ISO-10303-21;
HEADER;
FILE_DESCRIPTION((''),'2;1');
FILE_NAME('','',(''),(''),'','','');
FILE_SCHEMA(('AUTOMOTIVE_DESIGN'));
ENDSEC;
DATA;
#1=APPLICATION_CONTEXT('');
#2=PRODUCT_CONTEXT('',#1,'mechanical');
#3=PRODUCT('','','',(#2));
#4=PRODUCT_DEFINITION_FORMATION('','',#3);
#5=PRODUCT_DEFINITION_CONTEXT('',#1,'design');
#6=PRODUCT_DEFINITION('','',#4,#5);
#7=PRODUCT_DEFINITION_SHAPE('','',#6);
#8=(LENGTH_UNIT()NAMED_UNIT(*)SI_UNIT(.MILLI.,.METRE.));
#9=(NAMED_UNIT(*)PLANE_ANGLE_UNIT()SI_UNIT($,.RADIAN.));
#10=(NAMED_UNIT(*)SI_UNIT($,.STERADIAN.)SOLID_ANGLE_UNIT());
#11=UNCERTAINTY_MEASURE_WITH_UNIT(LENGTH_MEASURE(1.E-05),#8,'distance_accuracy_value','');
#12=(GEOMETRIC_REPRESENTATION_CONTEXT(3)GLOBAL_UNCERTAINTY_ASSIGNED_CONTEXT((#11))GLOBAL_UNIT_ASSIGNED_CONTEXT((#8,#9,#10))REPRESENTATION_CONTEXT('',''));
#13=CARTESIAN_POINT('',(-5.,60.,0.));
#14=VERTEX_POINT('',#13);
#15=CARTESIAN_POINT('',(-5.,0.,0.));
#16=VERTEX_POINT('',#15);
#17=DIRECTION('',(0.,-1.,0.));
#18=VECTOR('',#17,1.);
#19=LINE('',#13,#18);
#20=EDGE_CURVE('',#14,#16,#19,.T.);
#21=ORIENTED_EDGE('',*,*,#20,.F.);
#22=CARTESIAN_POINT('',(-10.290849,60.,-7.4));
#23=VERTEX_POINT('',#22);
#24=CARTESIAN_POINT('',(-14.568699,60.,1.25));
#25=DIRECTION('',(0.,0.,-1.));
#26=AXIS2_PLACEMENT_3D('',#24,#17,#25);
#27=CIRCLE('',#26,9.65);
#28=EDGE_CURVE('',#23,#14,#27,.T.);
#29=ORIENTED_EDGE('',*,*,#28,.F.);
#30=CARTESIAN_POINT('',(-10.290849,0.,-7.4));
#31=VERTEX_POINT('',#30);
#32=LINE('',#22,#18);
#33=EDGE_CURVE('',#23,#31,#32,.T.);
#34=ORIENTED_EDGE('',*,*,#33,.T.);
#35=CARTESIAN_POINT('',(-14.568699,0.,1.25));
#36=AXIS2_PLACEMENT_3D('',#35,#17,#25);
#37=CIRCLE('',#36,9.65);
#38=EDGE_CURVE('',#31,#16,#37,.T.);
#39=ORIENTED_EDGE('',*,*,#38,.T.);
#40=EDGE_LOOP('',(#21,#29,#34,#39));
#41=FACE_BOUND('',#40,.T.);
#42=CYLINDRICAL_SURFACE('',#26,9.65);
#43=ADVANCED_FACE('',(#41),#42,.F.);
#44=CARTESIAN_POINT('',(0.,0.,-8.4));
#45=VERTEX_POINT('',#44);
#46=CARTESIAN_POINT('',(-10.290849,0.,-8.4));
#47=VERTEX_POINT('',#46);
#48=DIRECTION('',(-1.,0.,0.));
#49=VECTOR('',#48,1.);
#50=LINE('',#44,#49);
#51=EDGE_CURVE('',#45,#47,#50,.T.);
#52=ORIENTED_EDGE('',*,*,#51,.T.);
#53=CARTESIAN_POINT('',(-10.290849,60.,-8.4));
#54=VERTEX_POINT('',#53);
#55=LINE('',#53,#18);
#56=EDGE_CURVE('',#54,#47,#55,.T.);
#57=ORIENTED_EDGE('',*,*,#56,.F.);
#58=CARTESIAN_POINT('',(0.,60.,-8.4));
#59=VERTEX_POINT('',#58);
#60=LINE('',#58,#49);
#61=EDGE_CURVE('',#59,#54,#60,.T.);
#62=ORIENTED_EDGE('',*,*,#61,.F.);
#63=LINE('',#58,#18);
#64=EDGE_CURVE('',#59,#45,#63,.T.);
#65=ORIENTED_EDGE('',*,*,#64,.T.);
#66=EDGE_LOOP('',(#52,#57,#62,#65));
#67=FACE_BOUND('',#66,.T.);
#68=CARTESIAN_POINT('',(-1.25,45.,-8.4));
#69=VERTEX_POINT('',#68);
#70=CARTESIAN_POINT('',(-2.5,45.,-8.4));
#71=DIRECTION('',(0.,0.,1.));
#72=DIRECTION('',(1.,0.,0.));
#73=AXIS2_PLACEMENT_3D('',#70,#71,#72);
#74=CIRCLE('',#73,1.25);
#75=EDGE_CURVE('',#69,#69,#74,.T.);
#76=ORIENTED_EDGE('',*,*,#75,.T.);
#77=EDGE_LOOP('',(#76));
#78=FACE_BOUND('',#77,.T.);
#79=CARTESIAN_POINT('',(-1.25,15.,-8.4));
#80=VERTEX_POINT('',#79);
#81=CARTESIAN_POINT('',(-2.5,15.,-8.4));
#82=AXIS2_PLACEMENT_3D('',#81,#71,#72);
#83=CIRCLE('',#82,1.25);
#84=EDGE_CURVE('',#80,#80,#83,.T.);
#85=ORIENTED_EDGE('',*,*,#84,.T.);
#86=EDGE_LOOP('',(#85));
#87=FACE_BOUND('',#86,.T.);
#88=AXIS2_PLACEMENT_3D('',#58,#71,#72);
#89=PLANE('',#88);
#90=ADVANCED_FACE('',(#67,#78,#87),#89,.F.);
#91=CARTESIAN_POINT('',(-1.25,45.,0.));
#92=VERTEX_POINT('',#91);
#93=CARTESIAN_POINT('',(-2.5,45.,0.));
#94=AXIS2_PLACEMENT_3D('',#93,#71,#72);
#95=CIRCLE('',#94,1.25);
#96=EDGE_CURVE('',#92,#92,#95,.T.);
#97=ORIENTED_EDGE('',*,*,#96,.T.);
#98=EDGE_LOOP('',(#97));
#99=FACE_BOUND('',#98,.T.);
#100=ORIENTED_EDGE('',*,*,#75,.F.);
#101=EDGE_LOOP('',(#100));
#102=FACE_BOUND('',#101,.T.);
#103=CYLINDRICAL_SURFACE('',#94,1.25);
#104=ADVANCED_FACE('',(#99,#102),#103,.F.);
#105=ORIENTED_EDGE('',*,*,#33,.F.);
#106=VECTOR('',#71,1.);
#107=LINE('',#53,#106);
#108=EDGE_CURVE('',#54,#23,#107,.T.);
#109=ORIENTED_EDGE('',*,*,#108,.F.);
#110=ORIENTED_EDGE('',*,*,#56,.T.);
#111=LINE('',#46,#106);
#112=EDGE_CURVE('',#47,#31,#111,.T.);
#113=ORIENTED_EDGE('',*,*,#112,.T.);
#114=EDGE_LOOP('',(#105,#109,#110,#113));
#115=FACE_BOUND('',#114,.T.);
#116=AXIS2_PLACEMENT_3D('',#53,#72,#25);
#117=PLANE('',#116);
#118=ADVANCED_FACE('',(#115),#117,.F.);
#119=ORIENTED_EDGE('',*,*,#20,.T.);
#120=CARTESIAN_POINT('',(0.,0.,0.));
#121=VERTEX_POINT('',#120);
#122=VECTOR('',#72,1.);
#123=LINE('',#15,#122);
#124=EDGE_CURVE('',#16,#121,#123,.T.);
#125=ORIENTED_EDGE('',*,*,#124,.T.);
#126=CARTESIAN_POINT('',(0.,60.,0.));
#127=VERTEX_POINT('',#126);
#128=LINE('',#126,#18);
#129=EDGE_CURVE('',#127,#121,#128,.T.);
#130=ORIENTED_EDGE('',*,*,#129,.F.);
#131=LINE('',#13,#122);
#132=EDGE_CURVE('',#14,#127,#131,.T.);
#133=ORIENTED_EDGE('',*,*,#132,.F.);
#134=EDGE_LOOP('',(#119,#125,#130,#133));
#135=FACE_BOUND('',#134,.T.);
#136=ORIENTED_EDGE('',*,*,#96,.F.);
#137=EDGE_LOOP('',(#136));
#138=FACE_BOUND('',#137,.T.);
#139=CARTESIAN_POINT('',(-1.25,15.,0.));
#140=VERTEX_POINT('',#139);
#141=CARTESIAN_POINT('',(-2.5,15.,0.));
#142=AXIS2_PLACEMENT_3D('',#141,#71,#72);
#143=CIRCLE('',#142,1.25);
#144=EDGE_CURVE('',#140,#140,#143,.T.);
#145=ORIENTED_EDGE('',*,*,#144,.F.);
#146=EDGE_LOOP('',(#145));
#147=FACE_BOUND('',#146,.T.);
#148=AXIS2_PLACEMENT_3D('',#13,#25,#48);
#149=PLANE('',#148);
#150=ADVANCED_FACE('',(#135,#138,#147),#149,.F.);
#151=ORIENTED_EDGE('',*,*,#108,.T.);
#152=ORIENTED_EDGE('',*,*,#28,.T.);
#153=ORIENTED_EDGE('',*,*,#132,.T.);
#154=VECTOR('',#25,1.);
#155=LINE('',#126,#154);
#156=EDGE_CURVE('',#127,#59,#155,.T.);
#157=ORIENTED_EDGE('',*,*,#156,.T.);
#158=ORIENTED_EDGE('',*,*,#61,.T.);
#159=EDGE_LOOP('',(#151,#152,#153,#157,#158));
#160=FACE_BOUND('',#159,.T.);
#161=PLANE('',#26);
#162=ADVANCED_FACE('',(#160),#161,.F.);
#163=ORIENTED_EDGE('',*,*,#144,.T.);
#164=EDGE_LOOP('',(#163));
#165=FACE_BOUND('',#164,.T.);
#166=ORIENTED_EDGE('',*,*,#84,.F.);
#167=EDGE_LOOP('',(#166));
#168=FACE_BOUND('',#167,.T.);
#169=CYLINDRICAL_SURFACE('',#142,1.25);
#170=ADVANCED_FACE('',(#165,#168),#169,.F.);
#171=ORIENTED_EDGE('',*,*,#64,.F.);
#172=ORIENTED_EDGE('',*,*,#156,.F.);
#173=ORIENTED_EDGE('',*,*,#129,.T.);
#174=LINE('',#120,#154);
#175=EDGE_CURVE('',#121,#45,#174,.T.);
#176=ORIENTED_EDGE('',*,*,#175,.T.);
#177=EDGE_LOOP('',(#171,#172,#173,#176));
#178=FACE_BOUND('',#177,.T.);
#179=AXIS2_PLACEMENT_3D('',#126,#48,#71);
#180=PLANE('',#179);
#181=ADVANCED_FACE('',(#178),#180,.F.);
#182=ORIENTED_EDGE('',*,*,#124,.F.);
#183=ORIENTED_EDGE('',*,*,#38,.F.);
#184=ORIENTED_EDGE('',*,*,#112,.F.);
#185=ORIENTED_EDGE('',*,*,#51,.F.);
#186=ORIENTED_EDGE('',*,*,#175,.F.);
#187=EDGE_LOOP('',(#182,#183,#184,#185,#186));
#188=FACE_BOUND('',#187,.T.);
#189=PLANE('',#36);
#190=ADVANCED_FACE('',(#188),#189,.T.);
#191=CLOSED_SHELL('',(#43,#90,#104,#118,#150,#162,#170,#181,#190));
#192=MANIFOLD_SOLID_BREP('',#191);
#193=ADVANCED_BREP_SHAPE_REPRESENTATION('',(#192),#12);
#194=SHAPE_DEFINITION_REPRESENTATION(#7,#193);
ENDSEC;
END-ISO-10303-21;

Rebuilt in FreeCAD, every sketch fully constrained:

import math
import FreeCAD as App
import Part
import Sketcher
from FreeCAD import Vector
Q = App.Units.Quantity

doc = App.newDocument("Part")
body = doc.addObject("PartDesign::Body", "Body")

# Sketch on XZ plane
sketch1 = body.newObject("Sketcher::SketchObject", "Sketch")
sketch1.AttachmentSupport = (doc.getObject("XZ_Plane"), [""])
sketch1.MapMode = "FlatFace"
sketch1.addGeometry([
    Part.LineSegment(Vector(0, 0, 0), Vector(0, -8.4, 0)),  # 0
    Part.LineSegment(Vector(0, -8.4, 0), Vector(-10.3, -8.4, 0)),  # 1
    Part.LineSegment(Vector(-10.3, -8.4, 0), Vector(-10.3, -7.4, 0)),  # 2
    Part.ArcOfCircle(Part.Circle(Vector(-14.6, 1.2, 0), Vector(0, 0, 1), 9.6), math.radians(-64), math.radians(-7)),  # 3
    Part.LineSegment(Vector(-5, 0, 0), Vector(0, 0, 0)),  # 4
], False)
sketch1.addConstraint([
    Sketcher.Constraint("Coincident", 0, 2, 1, 1),
    Sketcher.Constraint("Coincident", 1, 2, 2, 1),
    Sketcher.Constraint("Coincident", 2, 2, 3, 1),
    Sketcher.Constraint("Coincident", 3, 2, 4, 1),
    Sketcher.Constraint("Coincident", 4, 2, 0, 1),
    Sketcher.Constraint("Vertical", 0),
    Sketcher.Constraint("Horizontal", 1),
    Sketcher.Constraint("Vertical", 2),
    Sketcher.Constraint("Horizontal", 4),
    Sketcher.Constraint("Coincident", 4, 2, -1, 1),
    Sketcher.Constraint("DistanceX", 4, 1, 4, 2, Q("5 mm")),
    Sketcher.Constraint("DistanceY", 2, 1, 2, 2, Q("1 mm")),
    Sketcher.Constraint("Radius", 3, Q("9.65 mm")),
    Sketcher.Constraint("DistanceY", 0, 2, 0, 1, Q("8.4 mm")),
    Sketcher.Constraint("DistanceY", -1, 1, 3, 3, Q("1.25 mm")),
])
pad1 = body.newObject("PartDesign::Pad", "Pad")
pad1.Profile = sketch1
pad1.Length = 60
pad1.Reversed = True

# Sketch on XY plane
sketch2 = body.newObject("Sketcher::SketchObject", "Sketch001")
sketch2.AttachmentSupport = (doc.getObject("XY_Plane"), [""])
sketch2.MapMode = "FlatFace"
sketch2.addGeometry([
    Part.Circle(Vector(-2.5, 45, 0), Vector(0, 0, 1), 1.2),
    Part.Circle(Vector(-2.5, 15, 0), Vector(0, 0, 1), 1.2),
], False)
sketch2.addConstraint([
    Sketcher.Constraint("Equal", 0, 1),
    Sketcher.Constraint("Vertical", 0, 3, 1, 3),
    Sketcher.Constraint("Diameter", 0, Q("2.5 mm")),
    Sketcher.Constraint("DistanceY", -1, 1, 0, 3, Q("45 mm")),
    Sketcher.Constraint("DistanceY", -1, 1, 1, 3, Q("15 mm")),
    Sketcher.Constraint("DistanceX", 0, 3, -1, 1, Q("2.5 mm")),
])
doc.recompute()
hole = body.newObject("PartDesign::Hole", "Hole")
hole.Profile = sketch2
hole.ThreadType = "None"
hole.Diameter = 2.5
hole.DepthType = "ThroughAll"

doc.recompute()
